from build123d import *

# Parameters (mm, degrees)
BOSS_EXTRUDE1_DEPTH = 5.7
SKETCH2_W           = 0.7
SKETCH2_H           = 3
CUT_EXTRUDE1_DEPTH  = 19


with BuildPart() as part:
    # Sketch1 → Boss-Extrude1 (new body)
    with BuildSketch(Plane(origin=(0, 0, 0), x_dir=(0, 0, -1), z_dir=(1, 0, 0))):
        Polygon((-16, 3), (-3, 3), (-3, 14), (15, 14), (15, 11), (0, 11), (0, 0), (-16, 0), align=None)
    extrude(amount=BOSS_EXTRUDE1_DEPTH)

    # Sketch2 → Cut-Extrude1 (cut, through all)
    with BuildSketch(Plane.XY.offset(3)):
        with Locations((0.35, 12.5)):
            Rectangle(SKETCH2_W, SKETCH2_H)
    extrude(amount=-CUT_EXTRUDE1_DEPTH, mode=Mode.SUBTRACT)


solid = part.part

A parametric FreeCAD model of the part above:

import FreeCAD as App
import Part
import Sketcher

V = App.Vector

doc = App.newDocument("Part")
body = doc.addObject("PartDesign::Body", "Body")

# Sketch on YZ plane
sketch1 = body.newObject("Sketcher::SketchObject", "Sketch")
sketch1.AttachmentSupport = (doc.getObject("YZ_Plane"), [""])
sketch1.MapMode = "FlatFace"
sketch1.addGeometry([
    Part.LineSegment(V(3, 3, 0), V(3, 16, 0)),  # 0
    Part.LineSegment(V(3, 16, 0), V(0, 16, 0)),  # 1
    Part.LineSegment(V(0, 16, 0), V(0, 0, 0)),  # 2
    Part.LineSegment(V(0, 0, 0), V(11, 0, 0)),  # 3
    Part.LineSegment(V(11, 0, 0), V(11, -15, 0)),  # 4
    Part.LineSegment(V(11, -15, 0), V(14, -15, 0)),  # 5
    Part.LineSegment(V(14, -15, 0), V(14, 3, 0)),  # 6
    Part.LineSegment(V(14, 3, 0), V(3, 3, 0)),  # 7
], False)
sketch1.addConstraint([
    Sketcher.Constraint("Coincident", 0, 2, 1, 1),
    Sketcher.Constraint("Coincident", 1, 2, 2, 1),
    Sketcher.Constraint("Coincident", 2, 2, 3, 1),
    Sketcher.Constraint("Coincident", 3, 2, 4, 1),
    Sketcher.Constraint("Coincident", 4, 2, 5, 1),
    Sketcher.Constraint("Coincident", 5, 2, 6, 1),
    Sketcher.Constraint("Coincident", 6, 2, 7, 1),
    Sketcher.Constraint("Coincident", 7, 2, 0, 1),
    Sketcher.Constraint("Vertical", 0),
    Sketcher.Constraint("Horizontal", 1),
    Sketcher.Constraint("Vertical", 2),
    Sketcher.Constraint("Horizontal", 3),
    Sketcher.Constraint("Vertical", 4),
    Sketcher.Constraint("Horizontal", 5),
    Sketcher.Constraint("Vertical", 6),
    Sketcher.Constraint("Horizontal", 7),
    Sketcher.Constraint("Coincident", 2, 2, -1, 1),
    Sketcher.Constraint("Equal", 1, 5),
    Sketcher.Constraint("DistanceX", 1, 2, 1, 1, 3.0),
    Sketcher.Constraint("DistanceX", 3, 1, 3, 2, 11.0),
    Sketcher.Constraint("DistanceY", 0, 1, 0, 2, 13.0),
    Sketcher.Constraint("DistanceY", 2, 2, 2, 1, 16.0),
    Sketcher.Constraint("DistanceY", 4, 2, 4, 1, 15.0),
])
pad1 = body.newObject("PartDesign::Pad", "Pad")
pad1.Profile = sketch1
pad1.Length = 5.7

# Sketch on XY plane
sketch2 = body.newObject("Sketcher::SketchObject", "Sketch001")
sketch2.AttachmentSupport = (doc.getObject("XY_Plane"), [""])
sketch2.MapMode = "FlatFace"
sketch2.AttachmentOffset = App.Placement(V(0, 0, 3), App.Rotation())
sketch2.addGeometry([
    Part.LineSegment(V(0, 14, 0), V(0, 11, 0)),
    Part.LineSegment(V(0, 11, 0), V(0.7, 11, 0)),
    Part.LineSegment(V(0.7, 11, 0), V(0.7, 14, 0)),
    Part.LineSegment(V(0.7, 14, 0), V(0, 14, 0)),
], False)
sketch2.addConstraint([
    Sketcher.Constraint("Coincident", 0, 2, 1, 1),
    Sketcher.Constraint("Coincident", 1, 2, 2, 1),
    Sketcher.Constraint("Coincident", 2, 2, 3, 1),
    Sketcher.Constraint("Coincident", 3, 2, 0, 1),
    Sketcher.Constraint("Vertical", 0),
    Sketcher.Constraint("Horizontal", 1),
    Sketcher.Constraint("Vertical", 2),
    Sketcher.Constraint("Horizontal", 3),
    Sketcher.Constraint("PointOnObject", 0, 2, -2),
    Sketcher.Constraint("DistanceY", 0, 2, 0, 1, 3.0),
    Sketcher.Constraint("DistanceX", 1, 1, 1, 2, 0.7),
    Sketcher.Constraint("DistanceY", -1, 1, 0, 2, 11.0),
])
pocket1 = body.newObject("PartDesign::Pocket", "Pocket")
pocket1.Profile = sketch2
pocket1.Type = "ThroughAll"

doc.recompute()
